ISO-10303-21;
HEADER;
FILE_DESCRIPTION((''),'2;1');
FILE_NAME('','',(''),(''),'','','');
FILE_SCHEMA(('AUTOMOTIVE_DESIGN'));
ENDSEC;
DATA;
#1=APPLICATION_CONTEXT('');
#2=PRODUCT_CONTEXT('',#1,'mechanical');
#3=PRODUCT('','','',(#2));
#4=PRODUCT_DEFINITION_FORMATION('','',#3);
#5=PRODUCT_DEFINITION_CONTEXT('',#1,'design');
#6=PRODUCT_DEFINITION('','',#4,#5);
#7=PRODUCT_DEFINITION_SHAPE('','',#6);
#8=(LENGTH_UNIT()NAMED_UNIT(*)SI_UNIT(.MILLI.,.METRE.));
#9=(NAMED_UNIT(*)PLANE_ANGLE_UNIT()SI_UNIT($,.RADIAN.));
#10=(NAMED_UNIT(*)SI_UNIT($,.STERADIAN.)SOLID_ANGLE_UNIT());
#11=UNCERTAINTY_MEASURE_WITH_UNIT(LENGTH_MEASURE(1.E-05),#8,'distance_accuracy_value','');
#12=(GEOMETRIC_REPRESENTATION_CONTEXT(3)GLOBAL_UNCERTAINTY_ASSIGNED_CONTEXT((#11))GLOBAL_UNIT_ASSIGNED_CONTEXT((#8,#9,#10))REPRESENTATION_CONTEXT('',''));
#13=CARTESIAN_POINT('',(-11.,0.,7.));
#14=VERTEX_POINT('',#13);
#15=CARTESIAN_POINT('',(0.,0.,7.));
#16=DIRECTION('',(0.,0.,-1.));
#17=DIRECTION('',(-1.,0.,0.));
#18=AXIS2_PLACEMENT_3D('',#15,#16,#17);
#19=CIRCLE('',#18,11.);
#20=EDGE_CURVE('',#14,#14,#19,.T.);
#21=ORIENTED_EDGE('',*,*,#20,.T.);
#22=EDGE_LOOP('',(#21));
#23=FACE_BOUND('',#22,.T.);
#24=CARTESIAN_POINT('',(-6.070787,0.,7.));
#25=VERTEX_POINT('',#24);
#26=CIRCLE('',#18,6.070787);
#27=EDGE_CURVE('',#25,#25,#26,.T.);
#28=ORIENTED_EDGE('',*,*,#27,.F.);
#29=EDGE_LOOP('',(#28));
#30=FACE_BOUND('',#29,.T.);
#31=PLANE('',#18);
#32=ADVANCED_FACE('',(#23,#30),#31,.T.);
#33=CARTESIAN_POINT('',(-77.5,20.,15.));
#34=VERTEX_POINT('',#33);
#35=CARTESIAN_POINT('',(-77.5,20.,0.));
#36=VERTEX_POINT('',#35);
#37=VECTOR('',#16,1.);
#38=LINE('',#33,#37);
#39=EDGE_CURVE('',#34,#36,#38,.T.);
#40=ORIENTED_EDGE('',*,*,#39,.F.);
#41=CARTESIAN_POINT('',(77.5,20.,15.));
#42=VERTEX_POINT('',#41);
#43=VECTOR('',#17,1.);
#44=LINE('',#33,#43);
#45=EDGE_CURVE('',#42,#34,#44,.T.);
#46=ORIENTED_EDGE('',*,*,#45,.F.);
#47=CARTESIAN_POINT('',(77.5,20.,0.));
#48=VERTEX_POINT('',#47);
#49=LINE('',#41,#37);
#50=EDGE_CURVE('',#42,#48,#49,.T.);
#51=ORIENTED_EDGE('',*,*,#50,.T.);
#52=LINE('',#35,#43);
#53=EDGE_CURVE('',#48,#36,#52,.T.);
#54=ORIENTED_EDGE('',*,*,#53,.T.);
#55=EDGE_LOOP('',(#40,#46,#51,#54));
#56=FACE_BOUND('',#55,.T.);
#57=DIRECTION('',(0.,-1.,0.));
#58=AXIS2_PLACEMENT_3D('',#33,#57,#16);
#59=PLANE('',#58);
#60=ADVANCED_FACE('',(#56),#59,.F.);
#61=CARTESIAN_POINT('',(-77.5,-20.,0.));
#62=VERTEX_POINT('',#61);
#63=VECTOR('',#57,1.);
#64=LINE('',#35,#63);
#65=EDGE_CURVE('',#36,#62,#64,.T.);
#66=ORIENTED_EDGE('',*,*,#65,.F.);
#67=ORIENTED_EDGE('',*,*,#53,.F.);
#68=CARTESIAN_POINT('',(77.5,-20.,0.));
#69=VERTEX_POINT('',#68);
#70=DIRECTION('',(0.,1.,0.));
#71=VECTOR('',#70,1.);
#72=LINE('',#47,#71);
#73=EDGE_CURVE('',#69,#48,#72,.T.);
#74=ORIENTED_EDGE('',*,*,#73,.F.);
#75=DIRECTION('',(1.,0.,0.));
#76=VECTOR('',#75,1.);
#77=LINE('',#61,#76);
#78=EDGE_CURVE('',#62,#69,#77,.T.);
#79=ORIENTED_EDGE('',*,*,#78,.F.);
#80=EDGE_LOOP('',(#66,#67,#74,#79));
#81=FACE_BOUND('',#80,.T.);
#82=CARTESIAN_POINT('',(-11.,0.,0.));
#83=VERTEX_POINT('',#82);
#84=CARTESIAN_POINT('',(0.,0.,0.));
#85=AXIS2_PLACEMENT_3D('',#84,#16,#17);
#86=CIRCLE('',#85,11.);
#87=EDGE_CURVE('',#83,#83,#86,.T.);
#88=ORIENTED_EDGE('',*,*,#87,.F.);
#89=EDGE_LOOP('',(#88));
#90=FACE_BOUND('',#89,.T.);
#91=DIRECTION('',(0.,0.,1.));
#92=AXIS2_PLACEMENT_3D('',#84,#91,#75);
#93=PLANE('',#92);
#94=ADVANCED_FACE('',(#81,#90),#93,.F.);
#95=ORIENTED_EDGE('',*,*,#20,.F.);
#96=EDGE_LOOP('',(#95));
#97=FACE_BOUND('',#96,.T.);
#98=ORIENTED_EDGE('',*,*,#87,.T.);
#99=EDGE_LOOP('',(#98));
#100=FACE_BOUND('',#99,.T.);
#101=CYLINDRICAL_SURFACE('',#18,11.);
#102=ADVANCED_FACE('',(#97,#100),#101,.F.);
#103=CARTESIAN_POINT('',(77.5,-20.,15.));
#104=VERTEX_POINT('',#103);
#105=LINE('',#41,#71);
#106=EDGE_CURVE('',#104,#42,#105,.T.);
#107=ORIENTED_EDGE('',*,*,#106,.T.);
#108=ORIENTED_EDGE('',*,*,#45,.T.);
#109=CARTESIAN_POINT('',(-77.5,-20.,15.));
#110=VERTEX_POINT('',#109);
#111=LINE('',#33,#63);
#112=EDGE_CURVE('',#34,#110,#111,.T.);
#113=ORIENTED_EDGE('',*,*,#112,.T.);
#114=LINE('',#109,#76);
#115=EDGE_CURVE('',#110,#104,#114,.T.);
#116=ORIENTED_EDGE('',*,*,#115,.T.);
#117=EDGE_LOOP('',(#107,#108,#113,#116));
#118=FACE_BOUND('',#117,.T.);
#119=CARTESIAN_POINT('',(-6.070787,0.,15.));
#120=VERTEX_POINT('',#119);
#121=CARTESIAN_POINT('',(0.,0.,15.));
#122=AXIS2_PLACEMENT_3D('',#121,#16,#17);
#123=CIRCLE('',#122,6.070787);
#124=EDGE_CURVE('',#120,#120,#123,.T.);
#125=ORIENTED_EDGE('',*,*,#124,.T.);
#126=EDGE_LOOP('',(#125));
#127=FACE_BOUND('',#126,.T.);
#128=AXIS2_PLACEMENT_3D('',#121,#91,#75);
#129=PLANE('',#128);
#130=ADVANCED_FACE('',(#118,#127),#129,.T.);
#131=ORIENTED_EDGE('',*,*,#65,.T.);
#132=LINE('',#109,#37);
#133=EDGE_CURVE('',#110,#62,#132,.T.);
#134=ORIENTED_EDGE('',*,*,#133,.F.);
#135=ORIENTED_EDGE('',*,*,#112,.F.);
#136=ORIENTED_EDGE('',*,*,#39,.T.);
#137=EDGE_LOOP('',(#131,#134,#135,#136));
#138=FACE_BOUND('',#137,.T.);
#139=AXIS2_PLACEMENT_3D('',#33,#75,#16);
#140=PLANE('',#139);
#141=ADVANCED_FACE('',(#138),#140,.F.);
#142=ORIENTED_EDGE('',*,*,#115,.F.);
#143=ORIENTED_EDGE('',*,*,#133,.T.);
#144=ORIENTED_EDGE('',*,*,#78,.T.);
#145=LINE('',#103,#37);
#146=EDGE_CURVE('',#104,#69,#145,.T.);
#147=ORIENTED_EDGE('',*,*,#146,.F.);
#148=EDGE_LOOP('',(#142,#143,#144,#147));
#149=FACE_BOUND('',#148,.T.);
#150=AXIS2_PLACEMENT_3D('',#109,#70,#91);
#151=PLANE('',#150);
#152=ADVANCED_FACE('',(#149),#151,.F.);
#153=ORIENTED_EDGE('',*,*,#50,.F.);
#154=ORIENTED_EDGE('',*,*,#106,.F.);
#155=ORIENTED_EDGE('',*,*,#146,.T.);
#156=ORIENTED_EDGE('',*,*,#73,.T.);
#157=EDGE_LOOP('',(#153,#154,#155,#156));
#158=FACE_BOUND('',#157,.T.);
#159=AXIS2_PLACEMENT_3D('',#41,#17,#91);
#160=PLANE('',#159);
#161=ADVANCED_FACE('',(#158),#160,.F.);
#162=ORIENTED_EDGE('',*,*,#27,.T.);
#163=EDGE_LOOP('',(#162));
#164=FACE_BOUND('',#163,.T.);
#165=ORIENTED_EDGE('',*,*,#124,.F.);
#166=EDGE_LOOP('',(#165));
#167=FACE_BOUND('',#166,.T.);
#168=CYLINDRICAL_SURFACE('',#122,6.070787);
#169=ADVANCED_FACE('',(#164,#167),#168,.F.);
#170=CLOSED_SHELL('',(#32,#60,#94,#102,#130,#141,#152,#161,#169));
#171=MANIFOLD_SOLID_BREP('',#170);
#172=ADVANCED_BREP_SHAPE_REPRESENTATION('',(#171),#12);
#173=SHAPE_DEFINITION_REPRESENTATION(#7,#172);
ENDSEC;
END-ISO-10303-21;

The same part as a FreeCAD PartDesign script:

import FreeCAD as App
import Part
import Sketcher


def add_polygon(sketch, points):
    """Adds a closed chain of lines whose ends are joined by coincident constraints."""
    first, n = sketch.GeometryCount, len(points)
    for a, b in zip(points, points[1:] + points[:1]):
        sketch.addGeometry(Part.LineSegment(App.Vector(*a, 0), App.Vector(*b, 0)), False)
    for i in range(n):
        sketch.addConstraint(Sketcher.Constraint("Coincident", first + i, 2, first + (i + 1) % n, 1))

doc = App.newDocument("Part")
body = doc.addObject("PartDesign::Body", "Body")

# Sketch on XY plane
sketch1 = body.newObject("Sketcher::SketchObject", "Sketch")
sketch1.AttachmentSupport = (doc.getObject("XY_Plane"), [""])
sketch1.MapMode = "FlatFace"
add_polygon(sketch1, [(-78, 20), (-78, -20), (78, -20), (78, 20)])  # lines 0-3
sketch1.addConstraint([
    Sketcher.Constraint("Vertical", 0),
    Sketcher.Constraint("Horizontal", 1),
    Sketcher.Constraint("Vertical", 2),
    Sketcher.Constraint("Horizontal", 3),
    Sketcher.Constraint("Symmetric", 0, 2, 2, 2, -1, 1),
    Sketcher.Constraint("DistanceX", 1, 1, 1, 2, 155.0),
    Sketcher.Constraint("DistanceY", 0, 2, 0, 1, 40.0),
])
pad1 = body.newObject("PartDesign::Pad", "Pad")
pad1.Profile = sketch1
pad1.Length = 15

# Sketch on XY plane
sketch2 = body.newObject("Sketcher::SketchObject", "Sketch001")
sketch2.AttachmentSupport = (doc.getObject("XY_Plane"), [""])
sketch2.MapMode = "FlatFace"
sketch2.addGeometry(Part.Circle(App.Vector(0, 0, 0), App.Vector(0, 0, 1), 11), False)
sketch2.addConstraint([
    Sketcher.Constraint("Coincident", 0, 3, -1, 1),
    Sketcher.Constraint("Diameter", 0, 22.0),
])
pocket1 = body.newObject("PartDesign::Pocket", "Pocket")
pocket1.Profile = sketch2
pocket1.Length = 7
pocket1.Reversed = True

# Sketch on XY plane
sketch3 = body.newObject("Sketcher::SketchObject", "Sketch002")
sketch3.AttachmentSupport = (doc.getObject("XY_Plane"), [""])
sketch3.MapMode = "FlatFace"
sketch3.AttachmentOffset = App.Placement(App.Vector(0, 0, 15), App.Rotation())
sketch3.addGeometry(Part.Circle(App.Vector(0, 0, 0), App.Vector(0, 0, 1), 6), False)
sketch3.addConstraint([
    Sketcher.Constraint("Coincident", 0, 3, -1, 1),
    Sketcher.Constraint("Diameter", 0, 12.141574),
])
pocket2 = body.newObject("PartDesign::Pocket", "Pocket001")
pocket2.Profile = sketch3
pocket2.Length = 8

doc.recompute()
